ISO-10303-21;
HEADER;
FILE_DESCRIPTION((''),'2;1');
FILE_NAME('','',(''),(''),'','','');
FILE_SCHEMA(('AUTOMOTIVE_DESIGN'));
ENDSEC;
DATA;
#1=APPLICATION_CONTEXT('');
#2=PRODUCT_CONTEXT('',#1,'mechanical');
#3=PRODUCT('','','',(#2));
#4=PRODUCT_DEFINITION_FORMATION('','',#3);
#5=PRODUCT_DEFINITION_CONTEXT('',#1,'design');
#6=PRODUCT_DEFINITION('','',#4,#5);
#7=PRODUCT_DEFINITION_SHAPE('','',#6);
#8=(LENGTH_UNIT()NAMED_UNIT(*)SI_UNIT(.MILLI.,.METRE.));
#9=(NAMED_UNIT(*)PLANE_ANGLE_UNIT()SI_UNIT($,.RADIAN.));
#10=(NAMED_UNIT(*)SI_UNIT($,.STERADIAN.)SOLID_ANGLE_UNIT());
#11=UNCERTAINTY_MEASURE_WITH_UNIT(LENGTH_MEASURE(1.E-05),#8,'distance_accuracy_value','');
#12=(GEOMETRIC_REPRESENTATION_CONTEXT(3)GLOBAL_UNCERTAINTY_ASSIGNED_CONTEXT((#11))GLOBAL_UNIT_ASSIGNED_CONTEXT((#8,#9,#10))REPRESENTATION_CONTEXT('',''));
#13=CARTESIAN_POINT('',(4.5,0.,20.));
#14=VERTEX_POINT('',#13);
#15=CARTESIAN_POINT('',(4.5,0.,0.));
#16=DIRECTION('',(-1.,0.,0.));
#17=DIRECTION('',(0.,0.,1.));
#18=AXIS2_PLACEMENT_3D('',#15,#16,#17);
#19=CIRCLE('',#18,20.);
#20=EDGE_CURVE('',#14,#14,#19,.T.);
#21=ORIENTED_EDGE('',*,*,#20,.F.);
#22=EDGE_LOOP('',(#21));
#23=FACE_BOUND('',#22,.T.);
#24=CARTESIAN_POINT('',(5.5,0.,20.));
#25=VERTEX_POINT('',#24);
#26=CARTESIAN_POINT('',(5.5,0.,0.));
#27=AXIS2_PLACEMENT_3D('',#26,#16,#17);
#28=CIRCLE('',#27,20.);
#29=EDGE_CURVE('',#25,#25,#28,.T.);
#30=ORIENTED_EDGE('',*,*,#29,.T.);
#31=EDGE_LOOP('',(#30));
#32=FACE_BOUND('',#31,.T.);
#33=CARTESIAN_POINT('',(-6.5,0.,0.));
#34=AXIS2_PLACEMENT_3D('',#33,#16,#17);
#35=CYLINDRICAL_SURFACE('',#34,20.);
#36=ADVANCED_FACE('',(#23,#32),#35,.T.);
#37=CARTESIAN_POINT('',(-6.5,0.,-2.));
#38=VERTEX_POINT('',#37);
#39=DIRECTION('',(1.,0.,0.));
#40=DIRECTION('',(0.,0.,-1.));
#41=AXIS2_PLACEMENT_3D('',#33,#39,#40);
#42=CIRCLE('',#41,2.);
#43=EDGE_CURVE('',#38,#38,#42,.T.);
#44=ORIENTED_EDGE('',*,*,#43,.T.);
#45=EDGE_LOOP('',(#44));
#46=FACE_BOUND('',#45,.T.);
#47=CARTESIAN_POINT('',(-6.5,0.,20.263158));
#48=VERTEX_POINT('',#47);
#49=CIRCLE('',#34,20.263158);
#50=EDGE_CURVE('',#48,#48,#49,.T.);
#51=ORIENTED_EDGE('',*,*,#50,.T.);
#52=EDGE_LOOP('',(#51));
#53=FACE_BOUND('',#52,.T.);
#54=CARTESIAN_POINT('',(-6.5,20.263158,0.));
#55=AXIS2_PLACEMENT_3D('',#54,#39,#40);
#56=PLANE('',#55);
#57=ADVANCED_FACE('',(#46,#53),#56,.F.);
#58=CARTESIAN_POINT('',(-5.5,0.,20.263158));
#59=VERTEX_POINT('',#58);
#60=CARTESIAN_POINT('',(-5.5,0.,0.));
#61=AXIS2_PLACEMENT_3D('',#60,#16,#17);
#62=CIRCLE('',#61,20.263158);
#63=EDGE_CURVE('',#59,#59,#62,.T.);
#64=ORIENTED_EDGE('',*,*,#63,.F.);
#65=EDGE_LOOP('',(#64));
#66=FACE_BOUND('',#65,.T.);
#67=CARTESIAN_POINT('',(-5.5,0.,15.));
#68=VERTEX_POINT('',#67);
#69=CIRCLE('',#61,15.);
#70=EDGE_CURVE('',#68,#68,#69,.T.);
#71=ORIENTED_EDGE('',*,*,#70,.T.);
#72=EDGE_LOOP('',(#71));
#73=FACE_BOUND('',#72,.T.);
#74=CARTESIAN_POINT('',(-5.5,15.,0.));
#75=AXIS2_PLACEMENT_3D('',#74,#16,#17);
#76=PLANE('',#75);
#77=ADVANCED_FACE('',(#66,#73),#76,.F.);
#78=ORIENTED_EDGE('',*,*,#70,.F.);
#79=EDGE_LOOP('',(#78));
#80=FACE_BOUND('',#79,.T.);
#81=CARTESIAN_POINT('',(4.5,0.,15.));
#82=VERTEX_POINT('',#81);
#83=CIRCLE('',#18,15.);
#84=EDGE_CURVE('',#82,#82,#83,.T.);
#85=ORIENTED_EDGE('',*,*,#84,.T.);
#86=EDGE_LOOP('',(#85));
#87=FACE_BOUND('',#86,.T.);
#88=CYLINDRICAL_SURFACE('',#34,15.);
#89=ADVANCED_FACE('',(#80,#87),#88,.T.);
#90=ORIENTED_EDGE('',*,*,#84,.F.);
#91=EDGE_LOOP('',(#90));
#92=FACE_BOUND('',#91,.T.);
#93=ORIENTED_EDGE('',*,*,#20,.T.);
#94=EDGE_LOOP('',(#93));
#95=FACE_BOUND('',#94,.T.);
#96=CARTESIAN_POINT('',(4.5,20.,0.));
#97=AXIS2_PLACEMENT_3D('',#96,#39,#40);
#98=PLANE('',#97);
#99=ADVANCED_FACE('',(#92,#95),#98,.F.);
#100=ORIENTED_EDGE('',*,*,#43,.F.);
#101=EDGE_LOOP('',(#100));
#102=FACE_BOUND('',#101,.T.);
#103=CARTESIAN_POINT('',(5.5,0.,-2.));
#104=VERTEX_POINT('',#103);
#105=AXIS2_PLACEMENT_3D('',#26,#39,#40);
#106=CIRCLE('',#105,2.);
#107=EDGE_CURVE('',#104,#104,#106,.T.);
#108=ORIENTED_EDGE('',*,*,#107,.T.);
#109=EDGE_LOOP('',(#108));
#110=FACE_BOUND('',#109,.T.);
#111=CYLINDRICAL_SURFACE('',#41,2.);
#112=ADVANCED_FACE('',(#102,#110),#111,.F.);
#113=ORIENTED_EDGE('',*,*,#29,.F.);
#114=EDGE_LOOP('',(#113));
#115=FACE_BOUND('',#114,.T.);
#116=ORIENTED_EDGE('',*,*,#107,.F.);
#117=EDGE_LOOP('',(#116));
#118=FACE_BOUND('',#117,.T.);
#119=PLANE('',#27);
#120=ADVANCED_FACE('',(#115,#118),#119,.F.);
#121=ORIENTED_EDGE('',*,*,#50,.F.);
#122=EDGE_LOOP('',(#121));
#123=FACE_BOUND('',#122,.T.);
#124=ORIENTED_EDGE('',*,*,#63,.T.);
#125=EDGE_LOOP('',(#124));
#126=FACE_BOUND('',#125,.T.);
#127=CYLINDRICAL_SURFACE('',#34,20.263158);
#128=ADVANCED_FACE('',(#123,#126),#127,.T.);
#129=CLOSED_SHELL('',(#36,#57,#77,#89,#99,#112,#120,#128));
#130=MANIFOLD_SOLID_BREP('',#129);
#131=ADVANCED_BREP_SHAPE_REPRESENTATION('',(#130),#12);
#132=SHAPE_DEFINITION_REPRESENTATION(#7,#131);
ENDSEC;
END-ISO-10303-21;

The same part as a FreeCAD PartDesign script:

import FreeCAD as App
import Part
import Sketcher
from FreeCAD import Vector
Q = App.Units.Quantity


def add_polygon(sketch, points):
    """Adds a closed chain of lines whose ends are joined by coincident constraints."""
    first, n = sketch.GeometryCount, len(points)
    for a, b in zip(points, points[1:] + points[:1]):
        sketch.addGeometry(Part.LineSegment(App.Vector(*a, 0), App.Vector(*b, 0)), False)
    for i in range(n):
        sketch.addConstraint(Sketcher.Constraint("Coincident", first + i, 2, first + (i + 1) % n, 1))

doc = App.newDocument("Part")
body = doc.addObject("PartDesign::Body", "Body")

sketch1 = doc.addObject("Sketcher::SketchObject", "Sketch")
body.addObject(sketch1)
sketch1.AttachmentSupport = (doc.XY_Plane, [""])
sketch1.MapMode = "FlatFace"
add_polygon(sketch1, [(5.5, 0), (5.5, 20), (4.5, 20), (4.5, 15), (-5.5, 15), (-5.5, 20.263158), (-6.5, 20.263158), (-6.5, 0)])
sketch1.addConstraint([
    Sketcher.Constraint("Vertical", 0),
    Sketcher.Constraint("Horizontal", 1),
    Sketcher.Constraint("Vertical", 2),
    Sketcher.Constraint("Horizontal", 3),
    Sketcher.Constraint("Vertical", 4),
    Sketcher.Constraint("Horizontal", 5),
    Sketcher.Constraint("Vertical", 6),
    Sketcher.Constraint("Horizontal", 7),
    Sketcher.Constraint("PointOnObject", 6, 2, -1),
    Sketcher.Constraint("Equal", 1, 5),
    Sketcher.Constraint("DistanceX", 1, 2, 1, 1, Q("1 mm")),
    Sketcher.Constraint("DistanceX", 3, 2, 3, 1, Q("10 mm")),
    Sketcher.Constraint("DistanceY", 0, 1, 0, 2, Q("20 mm")),
    Sketcher.Constraint("DistanceY", 2, 2, 2, 1, Q("5 mm")),
    Sketcher.Constraint("DistanceX", -1, 1, 0, 2, Q("5.5 mm")),
    Sketcher.Constraint("DistanceY", 4, 1, 4, 2, Q("5.263158 mm")),
])
revolution = doc.addObject("PartDesign::Revolution", "Revolution")
body.addObject(revolution)
revolution.Profile = sketch1
revolution.ReferenceAxis = (sketch1, ["H_Axis"])
revolution.Angle = 360

sketch2 = doc.addObject("Sketcher::SketchObject", "Sketch001")
body.addObject(sketch2)
sketch2.AttachmentSupport = (doc.YZ_Plane, [""])
sketch2.MapMode = "FlatFace"
sketch2.AttachmentOffset = App.Placement(Vector(0, 0, 5.5), App.Rotation())
sketch2.addGeometry(Part.Circle(Vector(0, 0, 0), Vector(0, 0, 1), 2), False)
sketch2.addConstraint([
    Sketcher.Constraint("Coincident", 0, 3, -1, 1),
    Sketcher.Constraint("Diameter", 0, Q("4 mm")),
])
pocket1 = doc.addObject("PartDesign::Pocket", "Pocket")
body.addObject(pocket1)
pocket1.Profile = sketch2
pocket1.Type = "ThroughAll"

doc.recompute()
